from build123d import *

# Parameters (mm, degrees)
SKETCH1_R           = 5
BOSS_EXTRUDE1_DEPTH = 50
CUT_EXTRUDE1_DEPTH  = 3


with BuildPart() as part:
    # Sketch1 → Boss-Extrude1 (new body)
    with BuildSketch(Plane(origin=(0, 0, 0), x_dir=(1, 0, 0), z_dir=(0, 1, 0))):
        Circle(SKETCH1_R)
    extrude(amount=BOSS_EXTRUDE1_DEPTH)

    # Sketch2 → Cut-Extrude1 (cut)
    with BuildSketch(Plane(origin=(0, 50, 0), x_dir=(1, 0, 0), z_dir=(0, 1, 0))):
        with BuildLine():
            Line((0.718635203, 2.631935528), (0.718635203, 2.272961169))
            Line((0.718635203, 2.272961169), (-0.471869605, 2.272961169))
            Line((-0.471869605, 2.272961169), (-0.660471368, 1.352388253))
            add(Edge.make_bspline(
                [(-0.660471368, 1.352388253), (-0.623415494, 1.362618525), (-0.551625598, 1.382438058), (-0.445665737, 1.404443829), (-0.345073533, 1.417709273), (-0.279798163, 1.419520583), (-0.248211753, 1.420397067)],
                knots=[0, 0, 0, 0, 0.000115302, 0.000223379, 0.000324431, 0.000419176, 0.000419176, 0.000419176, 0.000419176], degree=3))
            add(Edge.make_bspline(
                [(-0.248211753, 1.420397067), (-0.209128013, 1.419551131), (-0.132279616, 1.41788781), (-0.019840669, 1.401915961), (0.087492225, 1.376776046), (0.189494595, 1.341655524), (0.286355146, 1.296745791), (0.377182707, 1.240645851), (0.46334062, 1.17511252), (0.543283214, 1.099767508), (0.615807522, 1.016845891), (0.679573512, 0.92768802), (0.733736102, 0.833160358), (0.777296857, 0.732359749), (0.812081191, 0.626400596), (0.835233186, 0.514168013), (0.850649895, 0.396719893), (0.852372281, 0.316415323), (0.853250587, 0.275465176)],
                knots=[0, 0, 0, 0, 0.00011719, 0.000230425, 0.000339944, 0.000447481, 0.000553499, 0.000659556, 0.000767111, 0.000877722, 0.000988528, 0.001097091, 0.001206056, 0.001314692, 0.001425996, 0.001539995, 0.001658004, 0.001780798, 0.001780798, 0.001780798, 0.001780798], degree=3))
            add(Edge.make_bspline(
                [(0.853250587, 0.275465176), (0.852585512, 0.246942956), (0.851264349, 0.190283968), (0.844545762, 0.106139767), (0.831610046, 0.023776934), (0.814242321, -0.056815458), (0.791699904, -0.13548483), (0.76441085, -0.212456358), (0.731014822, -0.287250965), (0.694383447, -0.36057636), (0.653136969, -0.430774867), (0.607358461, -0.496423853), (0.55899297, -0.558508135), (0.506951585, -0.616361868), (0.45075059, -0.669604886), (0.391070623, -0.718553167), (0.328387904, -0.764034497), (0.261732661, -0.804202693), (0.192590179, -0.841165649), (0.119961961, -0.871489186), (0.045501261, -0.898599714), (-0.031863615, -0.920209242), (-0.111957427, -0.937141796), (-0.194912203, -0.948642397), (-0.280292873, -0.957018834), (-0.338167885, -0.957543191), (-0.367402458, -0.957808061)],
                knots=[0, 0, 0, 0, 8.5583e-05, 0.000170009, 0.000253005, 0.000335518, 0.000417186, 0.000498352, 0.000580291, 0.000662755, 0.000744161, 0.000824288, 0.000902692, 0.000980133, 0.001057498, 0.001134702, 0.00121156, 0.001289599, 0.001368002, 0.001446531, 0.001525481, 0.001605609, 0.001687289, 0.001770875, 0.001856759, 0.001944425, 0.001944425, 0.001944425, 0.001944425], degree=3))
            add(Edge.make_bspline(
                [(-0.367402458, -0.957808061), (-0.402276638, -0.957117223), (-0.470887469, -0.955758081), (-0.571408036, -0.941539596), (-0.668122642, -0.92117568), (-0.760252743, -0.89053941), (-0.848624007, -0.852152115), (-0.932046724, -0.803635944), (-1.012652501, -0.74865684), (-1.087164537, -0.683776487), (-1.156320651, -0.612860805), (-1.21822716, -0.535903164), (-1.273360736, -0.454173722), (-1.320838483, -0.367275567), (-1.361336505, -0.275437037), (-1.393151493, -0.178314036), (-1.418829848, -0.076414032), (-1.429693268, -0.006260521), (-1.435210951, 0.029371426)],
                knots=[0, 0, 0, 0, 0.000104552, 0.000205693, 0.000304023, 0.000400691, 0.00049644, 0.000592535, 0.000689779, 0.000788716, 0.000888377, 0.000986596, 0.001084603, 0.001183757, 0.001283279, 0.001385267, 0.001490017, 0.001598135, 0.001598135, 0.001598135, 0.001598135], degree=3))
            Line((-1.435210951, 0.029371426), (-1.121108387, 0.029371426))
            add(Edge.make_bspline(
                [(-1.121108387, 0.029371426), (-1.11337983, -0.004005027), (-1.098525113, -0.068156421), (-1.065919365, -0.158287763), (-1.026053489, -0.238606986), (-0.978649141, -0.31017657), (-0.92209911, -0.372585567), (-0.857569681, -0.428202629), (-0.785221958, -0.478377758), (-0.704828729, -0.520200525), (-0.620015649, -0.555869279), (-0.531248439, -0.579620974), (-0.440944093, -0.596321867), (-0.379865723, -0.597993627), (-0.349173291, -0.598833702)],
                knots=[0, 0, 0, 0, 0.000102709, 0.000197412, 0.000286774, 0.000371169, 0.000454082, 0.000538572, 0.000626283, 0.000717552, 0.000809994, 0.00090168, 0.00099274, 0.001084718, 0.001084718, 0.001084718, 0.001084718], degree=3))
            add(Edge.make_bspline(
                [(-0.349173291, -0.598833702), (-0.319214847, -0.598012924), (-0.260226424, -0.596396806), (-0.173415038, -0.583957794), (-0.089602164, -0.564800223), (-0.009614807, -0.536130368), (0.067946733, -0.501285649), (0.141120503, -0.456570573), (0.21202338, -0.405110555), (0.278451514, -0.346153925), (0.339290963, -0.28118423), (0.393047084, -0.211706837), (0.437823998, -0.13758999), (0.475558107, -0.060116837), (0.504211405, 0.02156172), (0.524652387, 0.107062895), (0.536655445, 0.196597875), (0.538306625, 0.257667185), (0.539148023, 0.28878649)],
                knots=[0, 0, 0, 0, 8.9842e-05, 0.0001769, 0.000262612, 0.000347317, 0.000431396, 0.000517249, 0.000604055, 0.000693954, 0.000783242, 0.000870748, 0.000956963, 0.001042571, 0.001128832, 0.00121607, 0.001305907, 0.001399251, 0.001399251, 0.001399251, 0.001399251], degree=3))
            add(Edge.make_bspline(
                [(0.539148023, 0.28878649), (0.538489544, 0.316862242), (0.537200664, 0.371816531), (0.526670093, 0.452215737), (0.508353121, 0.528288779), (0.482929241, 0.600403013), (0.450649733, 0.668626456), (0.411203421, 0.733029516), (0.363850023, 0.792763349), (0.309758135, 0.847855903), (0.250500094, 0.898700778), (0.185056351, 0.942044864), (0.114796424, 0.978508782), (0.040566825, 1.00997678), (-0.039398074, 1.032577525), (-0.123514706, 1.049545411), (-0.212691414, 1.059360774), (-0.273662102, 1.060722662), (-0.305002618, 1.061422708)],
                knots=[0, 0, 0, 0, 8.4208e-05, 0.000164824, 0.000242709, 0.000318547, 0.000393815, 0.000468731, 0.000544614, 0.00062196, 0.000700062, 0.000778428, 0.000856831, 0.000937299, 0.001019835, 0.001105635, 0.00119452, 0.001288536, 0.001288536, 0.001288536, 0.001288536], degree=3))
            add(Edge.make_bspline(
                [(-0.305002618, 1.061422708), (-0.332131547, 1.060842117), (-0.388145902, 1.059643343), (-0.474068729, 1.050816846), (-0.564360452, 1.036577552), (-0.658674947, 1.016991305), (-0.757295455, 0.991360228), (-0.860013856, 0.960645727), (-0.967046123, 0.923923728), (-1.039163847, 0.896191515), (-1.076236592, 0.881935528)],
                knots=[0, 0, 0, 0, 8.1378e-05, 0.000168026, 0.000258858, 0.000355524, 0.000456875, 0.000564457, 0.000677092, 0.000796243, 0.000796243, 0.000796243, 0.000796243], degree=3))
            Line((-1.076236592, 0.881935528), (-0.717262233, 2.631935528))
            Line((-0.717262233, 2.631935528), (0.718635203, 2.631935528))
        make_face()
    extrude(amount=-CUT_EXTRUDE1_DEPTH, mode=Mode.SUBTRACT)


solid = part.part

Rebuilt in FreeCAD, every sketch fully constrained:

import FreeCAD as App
import Part
import Sketcher
from FreeCAD import Vector
Q = App.Units.Quantity

doc = App.newDocument("Part")
body = doc.addObject("PartDesign::Body", "Body")

sketch1 = body.newObject("Sketcher::SketchObject", "Sketch")
sketch1.AttachmentSupport = (doc.getObject("XZ_Plane"), [""])
sketch1.MapMode = "FlatFace"
sketch1.addGeometry(Part.Circle(Vector(0, 0, 0), Vector(0, 0, 1), 5), False)
sketch1.addConstraint([
    Sketcher.Constraint("Coincident", 0, 3, -1, 1),
    Sketcher.Constraint("Diameter", 0, Q("10 mm")),
])
pad1 = body.newObject("PartDesign::Pad", "Pad")
pad1.Profile = sketch1
pad1.Length = 50
pad1.Reversed = True

sketch2 = body.newObject("Sketcher::SketchObject", "Sketch001")
sketch2.AttachmentSupport = (doc.getObject("XZ_Plane"), [""])
sketch2.MapMode = "FlatFace"
sketch2.AttachmentOffset = App.Placement(Vector(0, 0, -50), App.Rotation())
sketch2.addGeometry([
    Part.LineSegment(Vector(0.718635, -2.272961, 0), Vector(0.718635, -2.631936, 0)),
    Part.LineSegment(Vector(0.718635, -2.631936, 0), Vector(-0.717262, -2.631936, 0)),
    Part.LineSegment(Vector(-0.717262, -2.631936, 0), Vector(-1.076237, -0.881936, 0)),
    Part.BSplineCurve([Vector(-0.305003, -1.061423, 0), Vector(-0.332132, -1.060842, 0), Vector(-0.388146, -1.059643, 0), Vector(-0.474069, -1.050817, 0), Vector(-0.56436, -1.036578, 0), Vector(-0.658675, -1.016991, 0), Vector(-0.757295, -0.99136, 0), Vector(-0.860014, -0.960646, 0), Vector(-0.967046, -0.923924, 0), Vector(-1.039164, -0.896192, 0), Vector(-1.076237, -0.881936, 0)], [4, 1, 1, 1, 1, 1, 1, 1, 4], [0, 0.000081378, 0.000168026, 0.000258858, 0.000355524, 0.000456875, 0.000564457, 0.000677092, 0.000796243], False, 3, [1, 1, 1, 1, 1, 1, 1, 1, 1, 1, 1], False),
    Part.BSplineCurve([Vector(0.539148, -0.288786, 0), Vector(0.53849, -0.316862, 0), Vector(0.537201, -0.371817, 0), Vector(0.52667, -0.452216, 0), Vector(0.508353, -0.528289, 0), Vector(0.482929, -0.600403, 0), Vector(0.45065, -0.668626, 0), Vector(0.411203, -0.73303, 0), Vector(0.36385, -0.792763, 0), Vector(0.309758, -0.847856, 0), Vector(0.2505, -0.898701, 0), Vector(0.185056, -0.942045, 0), Vector(0.114796, -0.978509, 0), Vector(0.040567, -1.009977, 0), Vector(-0.039398, -1.032578, 0), Vector(-0.123515, -1.049545, 0), Vector(-0.212691, -1.059361, 0), Vector(-0.273662, -1.060723, 0), Vector(-0.305003, -1.061423, 0)], [4, 1, 1, 1, 1, 1, 1, 1, 1, 1, 1, 1, 1, 1, 1, 1, 4], [0, 0.000084208, 0.000164824, 0.000242709, 0.000318547, 0.000393815, 0.000468731, 0.000544614, 0.00062196, 0.000700062, 0.000778428, 0.000856831, 0.000937299, 0.001019835, 0.001105635, 0.00119452, 0.001288536], False, 3, [1, 1, 1, 1, 1, 1, 1, 1, 1, 1, 1, 1, 1, 1, 1, 1, 1, 1, 1], False),
    Part.BSplineCurve([Vector(-0.349173, 0.598834, 0), Vector(-0.319215, 0.598013, 0), Vector(-0.260226, 0.596397, 0), Vector(-0.173415, 0.583958, 0), Vector(-0.089602, 0.5648, 0), Vector(-0.009615, 0.53613, 0), Vector(0.067947, 0.501286, 0), Vector(0.141121, 0.456571, 0), Vector(0.212023, 0.405111, 0), Vector(0.278452, 0.346154, 0), Vector(0.339291, 0.281184, 0), Vector(0.393047, 0.211707, 0), Vector(0.437824, 0.13759, 0), Vector(0.475558, 0.060117, 0), Vector(0.504211, -0.021562, 0), Vector(0.524652, -0.107063, 0), Vector(0.536655, -0.196598, 0), Vector(0.538307, -0.257667, 0), Vector(0.539148, -0.288786, 0)], [4, 1, 1, 1, 1, 1, 1, 1, 1, 1, 1, 1, 1, 1, 1, 1, 4], [0, 0.000089842, 0.0001769, 0.000262612, 0.000347317, 0.000431396, 0.000517249, 0.000604055, 0.000693954, 0.000783242, 0.000870748, 0.000956963, 0.001042571, 0.001128832, 0.00121607, 0.001305907, 0.001399251], False, 3, [1, 1, 1, 1, 1, 1, 1, 1, 1, 1, 1, 1, 1, 1, 1, 1, 1, 1, 1], False),
    Part.BSplineCurve([Vector(-1.121108, -0.029371, 0), Vector(-1.11338, 0.004005, 0), Vector(-1.098525, 0.068156, 0), Vector(-1.065919, 0.158288, 0), Vector(-1.026053, 0.238607, 0), Vector(-0.978649, 0.310177, 0), Vector(-0.922099, 0.372586, 0), Vector(-0.85757, 0.428203, 0), Vector(-0.785222, 0.478378, 0), Vector(-0.704829, 0.520201, 0), Vector(-0.620016, 0.555869, 0), Vector(-0.531248, 0.579621, 0), Vector(-0.440944, 0.596322, 0), Vector(-0.379866, 0.597994, 0), Vector(-0.349173, 0.598834, 0)], [4, 1, 1, 1, 1, 1, 1, 1, 1, 1, 1, 1, 4], [0, 0.000102709, 0.000197412, 0.000286774, 0.000371169, 0.000454082, 0.000538572, 0.000626283, 0.000717552, 0.000809994, 0.00090168, 0.00099274, 0.001084718], False, 3, [1, 1, 1, 1, 1, 1, 1, 1, 1, 1, 1, 1, 1, 1, 1], False),
    Part.LineSegment(Vector(-1.121108, -0.029371, 0), Vector(-1.435211, -0.029371, 0)),
    Part.BSplineCurve([Vector(-0.367402, 0.957808, 0), Vector(-0.402277, 0.957117, 0), Vector(-0.470887, 0.955758, 0), Vector(-0.571408, 0.94154, 0), Vector(-0.668123, 0.921176, 0), Vector(-0.760253, 0.890539, 0), Vector(-0.848624, 0.852152, 0), Vector(-0.932047, 0.803636, 0), Vector(-1.012653, 0.748657, 0), Vector(-1.087165, 0.683776, 0), Vector(-1.156321, 0.612861, 0), Vector(-1.218227, 0.535903, 0), Vector(-1.273361, 0.454174, 0), Vector(-1.320838, 0.367276, 0), Vector(-1.361337, 0.275437, 0), Vector(-1.393151, 0.178314, 0), Vector(-1.41883, 0.076414, 0), Vector(-1.429693, 0.006261, 0), Vector(-1.435211, -0.029371, 0)], [4, 1, 1, 1, 1, 1, 1, 1, 1, 1, 1, 1, 1, 1, 1, 1, 4], [0, 0.000104552, 0.000205693, 0.000304023, 0.000400691, 0.00049644, 0.000592535, 0.000689779, 0.000788716, 0.000888377, 0.000986596, 0.001084603, 0.001183757, 0.001283279, 0.001385267, 0.001490017, 0.001598135], False, 3, [1, 1, 1, 1, 1, 1, 1, 1, 1, 1, 1, 1, 1, 1, 1, 1, 1, 1, 1], False),
    Part.BSplineCurve([Vector(0.853251, -0.275465, 0), Vector(0.852586, -0.246943, 0), Vector(0.851264, -0.190284, 0), Vector(0.844546, -0.10614, 0), Vector(0.83161, -0.023777, 0), Vector(0.814242, 0.056815, 0), Vector(0.7917, 0.135485, 0), Vector(0.764411, 0.212456, 0), Vector(0.731015, 0.287251, 0), Vector(0.694383, 0.360576, 0), Vector(0.653137, 0.430775, 0), Vector(0.607358, 0.496424, 0), Vector(0.558993, 0.558508, 0), Vector(0.506952, 0.616362, 0), Vector(0.450751, 0.669605, 0), Vector(0.391071, 0.718553, 0), Vector(0.328388, 0.764034, 0), Vector(0.261733, 0.804203, 0), Vector(0.19259, 0.841166, 0), Vector(0.119962, 0.871489, 0), Vector(0.045501, 0.8986, 0), Vector(-0.031864, 0.920209, 0), Vector(-0.111957, 0.937142, 0), Vector(-0.194912, 0.948642, 0), Vector(-0.280293, 0.957019, 0), Vector(-0.338168, 0.957543, 0), Vector(-0.367402, 0.957808, 0)], [4, 1, 1, 1, 1, 1, 1, 1, 1, 1, 1, 1, 1, 1, 1, 1, 1, 1, 1, 1, 1, 1, 1, 1, 4], [0, 0.000085583, 0.000170009, 0.000253005, 0.000335518, 0.000417186, 0.000498352, 0.000580291, 0.000662755, 0.000744161, 0.000824288, 0.000902692, 0.000980133, 0.001057498, 0.001134702, 0.00121156, 0.001289599, 0.001368002, 0.001446531, 0.001525481, 0.001605609, 0.001687289, 0.001770875, 0.001856759, 0.001944425], False, 3, [1, 1, 1, 1, 1, 1, 1, 1, 1, 1, 1, 1, 1, 1, 1, 1, 1, 1, 1, 1, 1, 1, 1, 1, 1, 1, 1], False),
    Part.BSplineCurve([Vector(-0.248212, -1.420397, 0), Vector(-0.209128, -1.419551, 0), Vector(-0.13228, -1.417888, 0), Vector(-0.019841, -1.401916, 0), Vector(0.087492, -1.376776, 0), Vector(0.189495, -1.341656, 0), Vector(0.286355, -1.296746, 0), Vector(0.377183, -1.240646, 0), Vector(0.463341, -1.175113, 0), Vector(0.543283, -1.099768, 0), Vector(0.615808, -1.016846, 0), Vector(0.679574, -0.927688, 0), Vector(0.733736, -0.83316, 0), Vector(0.777297, -0.73236, 0), Vector(0.812081, -0.626401, 0), Vector(0.835233, -0.514168, 0), Vector(0.85065, -0.39672, 0), Vector(0.852372, -0.316415, 0), Vector(0.853251, -0.275465, 0)], [4, 1, 1, 1, 1, 1, 1, 1, 1, 1, 1, 1, 1, 1, 1, 1, 4], [0, 0.00011719, 0.000230425, 0.000339944, 0.000447481, 0.000553499, 0.000659556, 0.000767111, 0.000877722, 0.000988528, 0.001097091, 0.001206056, 0.001314692, 0.001425996, 0.001539995, 0.001658004, 0.001780798], False, 3, [1, 1, 1, 1, 1, 1, 1, 1, 1, 1, 1, 1, 1, 1, 1, 1, 1, 1, 1], False),
    Part.BSplineCurve([Vector(-0.660471, -1.352388, 0), Vector(-0.623415, -1.362619, 0), Vector(-0.551626, -1.382438, 0), Vector(-0.445666, -1.404444, 0), Vector(-0.345074, -1.417709, 0), Vector(-0.279798, -1.419521, 0), Vector(-0.248212, -1.420397, 0)], [4, 1, 1, 1, 4], [0, 0.000115302, 0.000223379, 0.000324431, 0.000419176], False, 3, [1, 1, 1, 1, 1, 1, 1], False),
    Part.LineSegment(Vector(-0.660471, -1.352388, 0), Vector(-0.47187, -2.272961, 0)),
    Part.LineSegment(Vector(-0.47187, -2.272961, 0), Vector(0.718635, -2.272961, 0)),
], False)
sketch2.addConstraint([
    Sketcher.Constraint("Block", 3),
    Sketcher.Constraint("Block", 4),
    Sketcher.Constraint("Block", 5),
    Sketcher.Constraint("Block", 6),
    Sketcher.Constraint("Block", 8),
    Sketcher.Constraint("Block", 9),
    Sketcher.Constraint("Block", 10),
    Sketcher.Constraint("Block", 11),
    Sketcher.Constraint("Coincident", 0, 2, 1, 1),
    Sketcher.Constraint("Coincident", 1, 2, 2, 1),
    Sketcher.Constraint("Coincident", 2, 2, 3, 2),
    Sketcher.Constraint("Coincident", 6, 1, 7, 1),
    Sketcher.Constraint("Coincident", 7, 2, 8, 2),
    Sketcher.Constraint("Coincident", 11, 1, 12, 1),
    Sketcher.Constraint("Coincident", 12, 2, 13, 1),
    Sketcher.Constraint("Coincident", 13, 2, 0, 1),
    Sketcher.Constraint("Vertical", 0),
    Sketcher.Constraint("Horizontal", 1),
    Sketcher.Constraint("Horizontal", 13),
    Sketcher.Constraint("DistanceY", 1, 2, 2, 2, Q("1.75 mm")),
    Sketcher.Constraint("Distance", 2, Q("1.786439 mm")),
    Sketcher.Constraint("DistanceX", 1, 2, 1, 1, Q("1.435897 mm")),
    Sketcher.Constraint("DistanceX", 13, 1, 13, 2, Q("1.190505 mm")),
    Sketcher.Constraint("DistanceY", 0, 2, 0, 1, Q("0.358974 mm")),
])
pocket1 = body.newObject("PartDesign::Pocket", "Pocket")
pocket1.Profile = sketch2
pocket1.Length = 3
pocket1.Reversed = True

doc.recompute()
